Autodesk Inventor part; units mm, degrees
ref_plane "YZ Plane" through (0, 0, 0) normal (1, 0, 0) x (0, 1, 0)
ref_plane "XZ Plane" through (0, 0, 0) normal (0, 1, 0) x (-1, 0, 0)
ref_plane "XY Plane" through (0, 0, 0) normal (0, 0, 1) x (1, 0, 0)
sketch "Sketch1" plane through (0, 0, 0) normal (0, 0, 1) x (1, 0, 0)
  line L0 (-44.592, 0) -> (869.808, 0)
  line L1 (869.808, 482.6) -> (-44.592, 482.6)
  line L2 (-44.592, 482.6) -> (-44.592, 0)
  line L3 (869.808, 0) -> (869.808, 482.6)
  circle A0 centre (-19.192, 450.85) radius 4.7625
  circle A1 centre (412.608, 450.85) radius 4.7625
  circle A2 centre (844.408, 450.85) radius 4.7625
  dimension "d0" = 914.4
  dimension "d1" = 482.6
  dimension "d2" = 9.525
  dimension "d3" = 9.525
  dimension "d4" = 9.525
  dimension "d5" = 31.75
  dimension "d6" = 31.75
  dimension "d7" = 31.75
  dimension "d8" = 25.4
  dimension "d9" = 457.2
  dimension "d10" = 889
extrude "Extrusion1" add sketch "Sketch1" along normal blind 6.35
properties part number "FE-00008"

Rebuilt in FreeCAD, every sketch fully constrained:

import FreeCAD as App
import Part
import Sketcher
Q = App.Units.Quantity

doc = App.newDocument("Part")
body = doc.addObject("PartDesign::Body", "Body")

# Sketch on XY plane
sketch1 = doc.addObject("Sketcher::SketchObject", "Sketch")
body.addObject(sketch1)
sketch1.AttachmentSupport = (doc.XY_Plane, [""])
sketch1.MapMode = "FlatFace"
sketch1.addGeometry([
    Part.LineSegment(App.Vector(-44.592, 482.6, 0), App.Vector(-44.592, 0, 0)),  # 0
    Part.LineSegment(App.Vector(-44.592, 0, 0), App.Vector(869.808, 0, 0)),  # 1
    Part.LineSegment(App.Vector(869.808, 0, 0), App.Vector(869.808, 482.6, 0)),  # 2
    Part.LineSegment(App.Vector(869.808, 482.6, 0), App.Vector(-44.592, 482.6, 0)),  # 3
    Part.Circle(App.Vector(-19.192, 450.85, 0), App.Vector(0, 0, 1), 4.7625),  # 4
    Part.Circle(App.Vector(412.608, 450.85, 0), App.Vector(0, 0, 1), 4.7625),  # 5
    Part.Circle(App.Vector(844.408, 450.85, 0), App.Vector(0, 0, 1), 4.7625),  # 6
], False)
sketch1.addConstraint([
    Sketcher.Constraint("Coincident", 0, 2, 1, 1),
    Sketcher.Constraint("Coincident", 1, 2, 2, 1),
    Sketcher.Constraint("Coincident", 2, 2, 3, 1),
    Sketcher.Constraint("Coincident", 3, 2, 0, 1),
    Sketcher.Constraint("Vertical", 0),
    Sketcher.Constraint("Horizontal", 1),
    Sketcher.Constraint("Vertical", 2),
    Sketcher.Constraint("Horizontal", 3),
    Sketcher.Constraint("Equal", 4, 5),
    Sketcher.Constraint("Equal", 5, 6),
    Sketcher.Constraint("PointOnObject", 0, 2, -1),
    Sketcher.Constraint("Horizontal", 4, 3, 5, 3),
    Sketcher.Constraint("Horizontal", 5, 3, 6, 3),
    Sketcher.Constraint("DistanceX", 1, 1, 1, 2, Q("36 in")),
    Sketcher.Constraint("DistanceY", 0, 2, 0, 1, Q("19 in")),
    Sketcher.Constraint("Diameter", 4, Q("0.375 in")),
    Sketcher.Constraint("DistanceX", 0, 2, 4, 3, Q("1 in")),
    Sketcher.Constraint("DistanceX", 0, 2, 5, 3, Q("18 in")),
    Sketcher.Constraint("DistanceX", 0, 2, 6, 3, Q("35 in")),
    Sketcher.Constraint("DistanceY", 6, 3, 2, 2, Q("1.25 in")),
    Sketcher.Constraint("DistanceX", 4, 3, -1, 1, Q("0.7556 in")),
])
pad1 = doc.addObject("PartDesign::Pad", "Pad")
body.addObject(pad1)
pad1.Profile = sketch1
pad1.Length = Q("0.25 in")

doc.recompute()
